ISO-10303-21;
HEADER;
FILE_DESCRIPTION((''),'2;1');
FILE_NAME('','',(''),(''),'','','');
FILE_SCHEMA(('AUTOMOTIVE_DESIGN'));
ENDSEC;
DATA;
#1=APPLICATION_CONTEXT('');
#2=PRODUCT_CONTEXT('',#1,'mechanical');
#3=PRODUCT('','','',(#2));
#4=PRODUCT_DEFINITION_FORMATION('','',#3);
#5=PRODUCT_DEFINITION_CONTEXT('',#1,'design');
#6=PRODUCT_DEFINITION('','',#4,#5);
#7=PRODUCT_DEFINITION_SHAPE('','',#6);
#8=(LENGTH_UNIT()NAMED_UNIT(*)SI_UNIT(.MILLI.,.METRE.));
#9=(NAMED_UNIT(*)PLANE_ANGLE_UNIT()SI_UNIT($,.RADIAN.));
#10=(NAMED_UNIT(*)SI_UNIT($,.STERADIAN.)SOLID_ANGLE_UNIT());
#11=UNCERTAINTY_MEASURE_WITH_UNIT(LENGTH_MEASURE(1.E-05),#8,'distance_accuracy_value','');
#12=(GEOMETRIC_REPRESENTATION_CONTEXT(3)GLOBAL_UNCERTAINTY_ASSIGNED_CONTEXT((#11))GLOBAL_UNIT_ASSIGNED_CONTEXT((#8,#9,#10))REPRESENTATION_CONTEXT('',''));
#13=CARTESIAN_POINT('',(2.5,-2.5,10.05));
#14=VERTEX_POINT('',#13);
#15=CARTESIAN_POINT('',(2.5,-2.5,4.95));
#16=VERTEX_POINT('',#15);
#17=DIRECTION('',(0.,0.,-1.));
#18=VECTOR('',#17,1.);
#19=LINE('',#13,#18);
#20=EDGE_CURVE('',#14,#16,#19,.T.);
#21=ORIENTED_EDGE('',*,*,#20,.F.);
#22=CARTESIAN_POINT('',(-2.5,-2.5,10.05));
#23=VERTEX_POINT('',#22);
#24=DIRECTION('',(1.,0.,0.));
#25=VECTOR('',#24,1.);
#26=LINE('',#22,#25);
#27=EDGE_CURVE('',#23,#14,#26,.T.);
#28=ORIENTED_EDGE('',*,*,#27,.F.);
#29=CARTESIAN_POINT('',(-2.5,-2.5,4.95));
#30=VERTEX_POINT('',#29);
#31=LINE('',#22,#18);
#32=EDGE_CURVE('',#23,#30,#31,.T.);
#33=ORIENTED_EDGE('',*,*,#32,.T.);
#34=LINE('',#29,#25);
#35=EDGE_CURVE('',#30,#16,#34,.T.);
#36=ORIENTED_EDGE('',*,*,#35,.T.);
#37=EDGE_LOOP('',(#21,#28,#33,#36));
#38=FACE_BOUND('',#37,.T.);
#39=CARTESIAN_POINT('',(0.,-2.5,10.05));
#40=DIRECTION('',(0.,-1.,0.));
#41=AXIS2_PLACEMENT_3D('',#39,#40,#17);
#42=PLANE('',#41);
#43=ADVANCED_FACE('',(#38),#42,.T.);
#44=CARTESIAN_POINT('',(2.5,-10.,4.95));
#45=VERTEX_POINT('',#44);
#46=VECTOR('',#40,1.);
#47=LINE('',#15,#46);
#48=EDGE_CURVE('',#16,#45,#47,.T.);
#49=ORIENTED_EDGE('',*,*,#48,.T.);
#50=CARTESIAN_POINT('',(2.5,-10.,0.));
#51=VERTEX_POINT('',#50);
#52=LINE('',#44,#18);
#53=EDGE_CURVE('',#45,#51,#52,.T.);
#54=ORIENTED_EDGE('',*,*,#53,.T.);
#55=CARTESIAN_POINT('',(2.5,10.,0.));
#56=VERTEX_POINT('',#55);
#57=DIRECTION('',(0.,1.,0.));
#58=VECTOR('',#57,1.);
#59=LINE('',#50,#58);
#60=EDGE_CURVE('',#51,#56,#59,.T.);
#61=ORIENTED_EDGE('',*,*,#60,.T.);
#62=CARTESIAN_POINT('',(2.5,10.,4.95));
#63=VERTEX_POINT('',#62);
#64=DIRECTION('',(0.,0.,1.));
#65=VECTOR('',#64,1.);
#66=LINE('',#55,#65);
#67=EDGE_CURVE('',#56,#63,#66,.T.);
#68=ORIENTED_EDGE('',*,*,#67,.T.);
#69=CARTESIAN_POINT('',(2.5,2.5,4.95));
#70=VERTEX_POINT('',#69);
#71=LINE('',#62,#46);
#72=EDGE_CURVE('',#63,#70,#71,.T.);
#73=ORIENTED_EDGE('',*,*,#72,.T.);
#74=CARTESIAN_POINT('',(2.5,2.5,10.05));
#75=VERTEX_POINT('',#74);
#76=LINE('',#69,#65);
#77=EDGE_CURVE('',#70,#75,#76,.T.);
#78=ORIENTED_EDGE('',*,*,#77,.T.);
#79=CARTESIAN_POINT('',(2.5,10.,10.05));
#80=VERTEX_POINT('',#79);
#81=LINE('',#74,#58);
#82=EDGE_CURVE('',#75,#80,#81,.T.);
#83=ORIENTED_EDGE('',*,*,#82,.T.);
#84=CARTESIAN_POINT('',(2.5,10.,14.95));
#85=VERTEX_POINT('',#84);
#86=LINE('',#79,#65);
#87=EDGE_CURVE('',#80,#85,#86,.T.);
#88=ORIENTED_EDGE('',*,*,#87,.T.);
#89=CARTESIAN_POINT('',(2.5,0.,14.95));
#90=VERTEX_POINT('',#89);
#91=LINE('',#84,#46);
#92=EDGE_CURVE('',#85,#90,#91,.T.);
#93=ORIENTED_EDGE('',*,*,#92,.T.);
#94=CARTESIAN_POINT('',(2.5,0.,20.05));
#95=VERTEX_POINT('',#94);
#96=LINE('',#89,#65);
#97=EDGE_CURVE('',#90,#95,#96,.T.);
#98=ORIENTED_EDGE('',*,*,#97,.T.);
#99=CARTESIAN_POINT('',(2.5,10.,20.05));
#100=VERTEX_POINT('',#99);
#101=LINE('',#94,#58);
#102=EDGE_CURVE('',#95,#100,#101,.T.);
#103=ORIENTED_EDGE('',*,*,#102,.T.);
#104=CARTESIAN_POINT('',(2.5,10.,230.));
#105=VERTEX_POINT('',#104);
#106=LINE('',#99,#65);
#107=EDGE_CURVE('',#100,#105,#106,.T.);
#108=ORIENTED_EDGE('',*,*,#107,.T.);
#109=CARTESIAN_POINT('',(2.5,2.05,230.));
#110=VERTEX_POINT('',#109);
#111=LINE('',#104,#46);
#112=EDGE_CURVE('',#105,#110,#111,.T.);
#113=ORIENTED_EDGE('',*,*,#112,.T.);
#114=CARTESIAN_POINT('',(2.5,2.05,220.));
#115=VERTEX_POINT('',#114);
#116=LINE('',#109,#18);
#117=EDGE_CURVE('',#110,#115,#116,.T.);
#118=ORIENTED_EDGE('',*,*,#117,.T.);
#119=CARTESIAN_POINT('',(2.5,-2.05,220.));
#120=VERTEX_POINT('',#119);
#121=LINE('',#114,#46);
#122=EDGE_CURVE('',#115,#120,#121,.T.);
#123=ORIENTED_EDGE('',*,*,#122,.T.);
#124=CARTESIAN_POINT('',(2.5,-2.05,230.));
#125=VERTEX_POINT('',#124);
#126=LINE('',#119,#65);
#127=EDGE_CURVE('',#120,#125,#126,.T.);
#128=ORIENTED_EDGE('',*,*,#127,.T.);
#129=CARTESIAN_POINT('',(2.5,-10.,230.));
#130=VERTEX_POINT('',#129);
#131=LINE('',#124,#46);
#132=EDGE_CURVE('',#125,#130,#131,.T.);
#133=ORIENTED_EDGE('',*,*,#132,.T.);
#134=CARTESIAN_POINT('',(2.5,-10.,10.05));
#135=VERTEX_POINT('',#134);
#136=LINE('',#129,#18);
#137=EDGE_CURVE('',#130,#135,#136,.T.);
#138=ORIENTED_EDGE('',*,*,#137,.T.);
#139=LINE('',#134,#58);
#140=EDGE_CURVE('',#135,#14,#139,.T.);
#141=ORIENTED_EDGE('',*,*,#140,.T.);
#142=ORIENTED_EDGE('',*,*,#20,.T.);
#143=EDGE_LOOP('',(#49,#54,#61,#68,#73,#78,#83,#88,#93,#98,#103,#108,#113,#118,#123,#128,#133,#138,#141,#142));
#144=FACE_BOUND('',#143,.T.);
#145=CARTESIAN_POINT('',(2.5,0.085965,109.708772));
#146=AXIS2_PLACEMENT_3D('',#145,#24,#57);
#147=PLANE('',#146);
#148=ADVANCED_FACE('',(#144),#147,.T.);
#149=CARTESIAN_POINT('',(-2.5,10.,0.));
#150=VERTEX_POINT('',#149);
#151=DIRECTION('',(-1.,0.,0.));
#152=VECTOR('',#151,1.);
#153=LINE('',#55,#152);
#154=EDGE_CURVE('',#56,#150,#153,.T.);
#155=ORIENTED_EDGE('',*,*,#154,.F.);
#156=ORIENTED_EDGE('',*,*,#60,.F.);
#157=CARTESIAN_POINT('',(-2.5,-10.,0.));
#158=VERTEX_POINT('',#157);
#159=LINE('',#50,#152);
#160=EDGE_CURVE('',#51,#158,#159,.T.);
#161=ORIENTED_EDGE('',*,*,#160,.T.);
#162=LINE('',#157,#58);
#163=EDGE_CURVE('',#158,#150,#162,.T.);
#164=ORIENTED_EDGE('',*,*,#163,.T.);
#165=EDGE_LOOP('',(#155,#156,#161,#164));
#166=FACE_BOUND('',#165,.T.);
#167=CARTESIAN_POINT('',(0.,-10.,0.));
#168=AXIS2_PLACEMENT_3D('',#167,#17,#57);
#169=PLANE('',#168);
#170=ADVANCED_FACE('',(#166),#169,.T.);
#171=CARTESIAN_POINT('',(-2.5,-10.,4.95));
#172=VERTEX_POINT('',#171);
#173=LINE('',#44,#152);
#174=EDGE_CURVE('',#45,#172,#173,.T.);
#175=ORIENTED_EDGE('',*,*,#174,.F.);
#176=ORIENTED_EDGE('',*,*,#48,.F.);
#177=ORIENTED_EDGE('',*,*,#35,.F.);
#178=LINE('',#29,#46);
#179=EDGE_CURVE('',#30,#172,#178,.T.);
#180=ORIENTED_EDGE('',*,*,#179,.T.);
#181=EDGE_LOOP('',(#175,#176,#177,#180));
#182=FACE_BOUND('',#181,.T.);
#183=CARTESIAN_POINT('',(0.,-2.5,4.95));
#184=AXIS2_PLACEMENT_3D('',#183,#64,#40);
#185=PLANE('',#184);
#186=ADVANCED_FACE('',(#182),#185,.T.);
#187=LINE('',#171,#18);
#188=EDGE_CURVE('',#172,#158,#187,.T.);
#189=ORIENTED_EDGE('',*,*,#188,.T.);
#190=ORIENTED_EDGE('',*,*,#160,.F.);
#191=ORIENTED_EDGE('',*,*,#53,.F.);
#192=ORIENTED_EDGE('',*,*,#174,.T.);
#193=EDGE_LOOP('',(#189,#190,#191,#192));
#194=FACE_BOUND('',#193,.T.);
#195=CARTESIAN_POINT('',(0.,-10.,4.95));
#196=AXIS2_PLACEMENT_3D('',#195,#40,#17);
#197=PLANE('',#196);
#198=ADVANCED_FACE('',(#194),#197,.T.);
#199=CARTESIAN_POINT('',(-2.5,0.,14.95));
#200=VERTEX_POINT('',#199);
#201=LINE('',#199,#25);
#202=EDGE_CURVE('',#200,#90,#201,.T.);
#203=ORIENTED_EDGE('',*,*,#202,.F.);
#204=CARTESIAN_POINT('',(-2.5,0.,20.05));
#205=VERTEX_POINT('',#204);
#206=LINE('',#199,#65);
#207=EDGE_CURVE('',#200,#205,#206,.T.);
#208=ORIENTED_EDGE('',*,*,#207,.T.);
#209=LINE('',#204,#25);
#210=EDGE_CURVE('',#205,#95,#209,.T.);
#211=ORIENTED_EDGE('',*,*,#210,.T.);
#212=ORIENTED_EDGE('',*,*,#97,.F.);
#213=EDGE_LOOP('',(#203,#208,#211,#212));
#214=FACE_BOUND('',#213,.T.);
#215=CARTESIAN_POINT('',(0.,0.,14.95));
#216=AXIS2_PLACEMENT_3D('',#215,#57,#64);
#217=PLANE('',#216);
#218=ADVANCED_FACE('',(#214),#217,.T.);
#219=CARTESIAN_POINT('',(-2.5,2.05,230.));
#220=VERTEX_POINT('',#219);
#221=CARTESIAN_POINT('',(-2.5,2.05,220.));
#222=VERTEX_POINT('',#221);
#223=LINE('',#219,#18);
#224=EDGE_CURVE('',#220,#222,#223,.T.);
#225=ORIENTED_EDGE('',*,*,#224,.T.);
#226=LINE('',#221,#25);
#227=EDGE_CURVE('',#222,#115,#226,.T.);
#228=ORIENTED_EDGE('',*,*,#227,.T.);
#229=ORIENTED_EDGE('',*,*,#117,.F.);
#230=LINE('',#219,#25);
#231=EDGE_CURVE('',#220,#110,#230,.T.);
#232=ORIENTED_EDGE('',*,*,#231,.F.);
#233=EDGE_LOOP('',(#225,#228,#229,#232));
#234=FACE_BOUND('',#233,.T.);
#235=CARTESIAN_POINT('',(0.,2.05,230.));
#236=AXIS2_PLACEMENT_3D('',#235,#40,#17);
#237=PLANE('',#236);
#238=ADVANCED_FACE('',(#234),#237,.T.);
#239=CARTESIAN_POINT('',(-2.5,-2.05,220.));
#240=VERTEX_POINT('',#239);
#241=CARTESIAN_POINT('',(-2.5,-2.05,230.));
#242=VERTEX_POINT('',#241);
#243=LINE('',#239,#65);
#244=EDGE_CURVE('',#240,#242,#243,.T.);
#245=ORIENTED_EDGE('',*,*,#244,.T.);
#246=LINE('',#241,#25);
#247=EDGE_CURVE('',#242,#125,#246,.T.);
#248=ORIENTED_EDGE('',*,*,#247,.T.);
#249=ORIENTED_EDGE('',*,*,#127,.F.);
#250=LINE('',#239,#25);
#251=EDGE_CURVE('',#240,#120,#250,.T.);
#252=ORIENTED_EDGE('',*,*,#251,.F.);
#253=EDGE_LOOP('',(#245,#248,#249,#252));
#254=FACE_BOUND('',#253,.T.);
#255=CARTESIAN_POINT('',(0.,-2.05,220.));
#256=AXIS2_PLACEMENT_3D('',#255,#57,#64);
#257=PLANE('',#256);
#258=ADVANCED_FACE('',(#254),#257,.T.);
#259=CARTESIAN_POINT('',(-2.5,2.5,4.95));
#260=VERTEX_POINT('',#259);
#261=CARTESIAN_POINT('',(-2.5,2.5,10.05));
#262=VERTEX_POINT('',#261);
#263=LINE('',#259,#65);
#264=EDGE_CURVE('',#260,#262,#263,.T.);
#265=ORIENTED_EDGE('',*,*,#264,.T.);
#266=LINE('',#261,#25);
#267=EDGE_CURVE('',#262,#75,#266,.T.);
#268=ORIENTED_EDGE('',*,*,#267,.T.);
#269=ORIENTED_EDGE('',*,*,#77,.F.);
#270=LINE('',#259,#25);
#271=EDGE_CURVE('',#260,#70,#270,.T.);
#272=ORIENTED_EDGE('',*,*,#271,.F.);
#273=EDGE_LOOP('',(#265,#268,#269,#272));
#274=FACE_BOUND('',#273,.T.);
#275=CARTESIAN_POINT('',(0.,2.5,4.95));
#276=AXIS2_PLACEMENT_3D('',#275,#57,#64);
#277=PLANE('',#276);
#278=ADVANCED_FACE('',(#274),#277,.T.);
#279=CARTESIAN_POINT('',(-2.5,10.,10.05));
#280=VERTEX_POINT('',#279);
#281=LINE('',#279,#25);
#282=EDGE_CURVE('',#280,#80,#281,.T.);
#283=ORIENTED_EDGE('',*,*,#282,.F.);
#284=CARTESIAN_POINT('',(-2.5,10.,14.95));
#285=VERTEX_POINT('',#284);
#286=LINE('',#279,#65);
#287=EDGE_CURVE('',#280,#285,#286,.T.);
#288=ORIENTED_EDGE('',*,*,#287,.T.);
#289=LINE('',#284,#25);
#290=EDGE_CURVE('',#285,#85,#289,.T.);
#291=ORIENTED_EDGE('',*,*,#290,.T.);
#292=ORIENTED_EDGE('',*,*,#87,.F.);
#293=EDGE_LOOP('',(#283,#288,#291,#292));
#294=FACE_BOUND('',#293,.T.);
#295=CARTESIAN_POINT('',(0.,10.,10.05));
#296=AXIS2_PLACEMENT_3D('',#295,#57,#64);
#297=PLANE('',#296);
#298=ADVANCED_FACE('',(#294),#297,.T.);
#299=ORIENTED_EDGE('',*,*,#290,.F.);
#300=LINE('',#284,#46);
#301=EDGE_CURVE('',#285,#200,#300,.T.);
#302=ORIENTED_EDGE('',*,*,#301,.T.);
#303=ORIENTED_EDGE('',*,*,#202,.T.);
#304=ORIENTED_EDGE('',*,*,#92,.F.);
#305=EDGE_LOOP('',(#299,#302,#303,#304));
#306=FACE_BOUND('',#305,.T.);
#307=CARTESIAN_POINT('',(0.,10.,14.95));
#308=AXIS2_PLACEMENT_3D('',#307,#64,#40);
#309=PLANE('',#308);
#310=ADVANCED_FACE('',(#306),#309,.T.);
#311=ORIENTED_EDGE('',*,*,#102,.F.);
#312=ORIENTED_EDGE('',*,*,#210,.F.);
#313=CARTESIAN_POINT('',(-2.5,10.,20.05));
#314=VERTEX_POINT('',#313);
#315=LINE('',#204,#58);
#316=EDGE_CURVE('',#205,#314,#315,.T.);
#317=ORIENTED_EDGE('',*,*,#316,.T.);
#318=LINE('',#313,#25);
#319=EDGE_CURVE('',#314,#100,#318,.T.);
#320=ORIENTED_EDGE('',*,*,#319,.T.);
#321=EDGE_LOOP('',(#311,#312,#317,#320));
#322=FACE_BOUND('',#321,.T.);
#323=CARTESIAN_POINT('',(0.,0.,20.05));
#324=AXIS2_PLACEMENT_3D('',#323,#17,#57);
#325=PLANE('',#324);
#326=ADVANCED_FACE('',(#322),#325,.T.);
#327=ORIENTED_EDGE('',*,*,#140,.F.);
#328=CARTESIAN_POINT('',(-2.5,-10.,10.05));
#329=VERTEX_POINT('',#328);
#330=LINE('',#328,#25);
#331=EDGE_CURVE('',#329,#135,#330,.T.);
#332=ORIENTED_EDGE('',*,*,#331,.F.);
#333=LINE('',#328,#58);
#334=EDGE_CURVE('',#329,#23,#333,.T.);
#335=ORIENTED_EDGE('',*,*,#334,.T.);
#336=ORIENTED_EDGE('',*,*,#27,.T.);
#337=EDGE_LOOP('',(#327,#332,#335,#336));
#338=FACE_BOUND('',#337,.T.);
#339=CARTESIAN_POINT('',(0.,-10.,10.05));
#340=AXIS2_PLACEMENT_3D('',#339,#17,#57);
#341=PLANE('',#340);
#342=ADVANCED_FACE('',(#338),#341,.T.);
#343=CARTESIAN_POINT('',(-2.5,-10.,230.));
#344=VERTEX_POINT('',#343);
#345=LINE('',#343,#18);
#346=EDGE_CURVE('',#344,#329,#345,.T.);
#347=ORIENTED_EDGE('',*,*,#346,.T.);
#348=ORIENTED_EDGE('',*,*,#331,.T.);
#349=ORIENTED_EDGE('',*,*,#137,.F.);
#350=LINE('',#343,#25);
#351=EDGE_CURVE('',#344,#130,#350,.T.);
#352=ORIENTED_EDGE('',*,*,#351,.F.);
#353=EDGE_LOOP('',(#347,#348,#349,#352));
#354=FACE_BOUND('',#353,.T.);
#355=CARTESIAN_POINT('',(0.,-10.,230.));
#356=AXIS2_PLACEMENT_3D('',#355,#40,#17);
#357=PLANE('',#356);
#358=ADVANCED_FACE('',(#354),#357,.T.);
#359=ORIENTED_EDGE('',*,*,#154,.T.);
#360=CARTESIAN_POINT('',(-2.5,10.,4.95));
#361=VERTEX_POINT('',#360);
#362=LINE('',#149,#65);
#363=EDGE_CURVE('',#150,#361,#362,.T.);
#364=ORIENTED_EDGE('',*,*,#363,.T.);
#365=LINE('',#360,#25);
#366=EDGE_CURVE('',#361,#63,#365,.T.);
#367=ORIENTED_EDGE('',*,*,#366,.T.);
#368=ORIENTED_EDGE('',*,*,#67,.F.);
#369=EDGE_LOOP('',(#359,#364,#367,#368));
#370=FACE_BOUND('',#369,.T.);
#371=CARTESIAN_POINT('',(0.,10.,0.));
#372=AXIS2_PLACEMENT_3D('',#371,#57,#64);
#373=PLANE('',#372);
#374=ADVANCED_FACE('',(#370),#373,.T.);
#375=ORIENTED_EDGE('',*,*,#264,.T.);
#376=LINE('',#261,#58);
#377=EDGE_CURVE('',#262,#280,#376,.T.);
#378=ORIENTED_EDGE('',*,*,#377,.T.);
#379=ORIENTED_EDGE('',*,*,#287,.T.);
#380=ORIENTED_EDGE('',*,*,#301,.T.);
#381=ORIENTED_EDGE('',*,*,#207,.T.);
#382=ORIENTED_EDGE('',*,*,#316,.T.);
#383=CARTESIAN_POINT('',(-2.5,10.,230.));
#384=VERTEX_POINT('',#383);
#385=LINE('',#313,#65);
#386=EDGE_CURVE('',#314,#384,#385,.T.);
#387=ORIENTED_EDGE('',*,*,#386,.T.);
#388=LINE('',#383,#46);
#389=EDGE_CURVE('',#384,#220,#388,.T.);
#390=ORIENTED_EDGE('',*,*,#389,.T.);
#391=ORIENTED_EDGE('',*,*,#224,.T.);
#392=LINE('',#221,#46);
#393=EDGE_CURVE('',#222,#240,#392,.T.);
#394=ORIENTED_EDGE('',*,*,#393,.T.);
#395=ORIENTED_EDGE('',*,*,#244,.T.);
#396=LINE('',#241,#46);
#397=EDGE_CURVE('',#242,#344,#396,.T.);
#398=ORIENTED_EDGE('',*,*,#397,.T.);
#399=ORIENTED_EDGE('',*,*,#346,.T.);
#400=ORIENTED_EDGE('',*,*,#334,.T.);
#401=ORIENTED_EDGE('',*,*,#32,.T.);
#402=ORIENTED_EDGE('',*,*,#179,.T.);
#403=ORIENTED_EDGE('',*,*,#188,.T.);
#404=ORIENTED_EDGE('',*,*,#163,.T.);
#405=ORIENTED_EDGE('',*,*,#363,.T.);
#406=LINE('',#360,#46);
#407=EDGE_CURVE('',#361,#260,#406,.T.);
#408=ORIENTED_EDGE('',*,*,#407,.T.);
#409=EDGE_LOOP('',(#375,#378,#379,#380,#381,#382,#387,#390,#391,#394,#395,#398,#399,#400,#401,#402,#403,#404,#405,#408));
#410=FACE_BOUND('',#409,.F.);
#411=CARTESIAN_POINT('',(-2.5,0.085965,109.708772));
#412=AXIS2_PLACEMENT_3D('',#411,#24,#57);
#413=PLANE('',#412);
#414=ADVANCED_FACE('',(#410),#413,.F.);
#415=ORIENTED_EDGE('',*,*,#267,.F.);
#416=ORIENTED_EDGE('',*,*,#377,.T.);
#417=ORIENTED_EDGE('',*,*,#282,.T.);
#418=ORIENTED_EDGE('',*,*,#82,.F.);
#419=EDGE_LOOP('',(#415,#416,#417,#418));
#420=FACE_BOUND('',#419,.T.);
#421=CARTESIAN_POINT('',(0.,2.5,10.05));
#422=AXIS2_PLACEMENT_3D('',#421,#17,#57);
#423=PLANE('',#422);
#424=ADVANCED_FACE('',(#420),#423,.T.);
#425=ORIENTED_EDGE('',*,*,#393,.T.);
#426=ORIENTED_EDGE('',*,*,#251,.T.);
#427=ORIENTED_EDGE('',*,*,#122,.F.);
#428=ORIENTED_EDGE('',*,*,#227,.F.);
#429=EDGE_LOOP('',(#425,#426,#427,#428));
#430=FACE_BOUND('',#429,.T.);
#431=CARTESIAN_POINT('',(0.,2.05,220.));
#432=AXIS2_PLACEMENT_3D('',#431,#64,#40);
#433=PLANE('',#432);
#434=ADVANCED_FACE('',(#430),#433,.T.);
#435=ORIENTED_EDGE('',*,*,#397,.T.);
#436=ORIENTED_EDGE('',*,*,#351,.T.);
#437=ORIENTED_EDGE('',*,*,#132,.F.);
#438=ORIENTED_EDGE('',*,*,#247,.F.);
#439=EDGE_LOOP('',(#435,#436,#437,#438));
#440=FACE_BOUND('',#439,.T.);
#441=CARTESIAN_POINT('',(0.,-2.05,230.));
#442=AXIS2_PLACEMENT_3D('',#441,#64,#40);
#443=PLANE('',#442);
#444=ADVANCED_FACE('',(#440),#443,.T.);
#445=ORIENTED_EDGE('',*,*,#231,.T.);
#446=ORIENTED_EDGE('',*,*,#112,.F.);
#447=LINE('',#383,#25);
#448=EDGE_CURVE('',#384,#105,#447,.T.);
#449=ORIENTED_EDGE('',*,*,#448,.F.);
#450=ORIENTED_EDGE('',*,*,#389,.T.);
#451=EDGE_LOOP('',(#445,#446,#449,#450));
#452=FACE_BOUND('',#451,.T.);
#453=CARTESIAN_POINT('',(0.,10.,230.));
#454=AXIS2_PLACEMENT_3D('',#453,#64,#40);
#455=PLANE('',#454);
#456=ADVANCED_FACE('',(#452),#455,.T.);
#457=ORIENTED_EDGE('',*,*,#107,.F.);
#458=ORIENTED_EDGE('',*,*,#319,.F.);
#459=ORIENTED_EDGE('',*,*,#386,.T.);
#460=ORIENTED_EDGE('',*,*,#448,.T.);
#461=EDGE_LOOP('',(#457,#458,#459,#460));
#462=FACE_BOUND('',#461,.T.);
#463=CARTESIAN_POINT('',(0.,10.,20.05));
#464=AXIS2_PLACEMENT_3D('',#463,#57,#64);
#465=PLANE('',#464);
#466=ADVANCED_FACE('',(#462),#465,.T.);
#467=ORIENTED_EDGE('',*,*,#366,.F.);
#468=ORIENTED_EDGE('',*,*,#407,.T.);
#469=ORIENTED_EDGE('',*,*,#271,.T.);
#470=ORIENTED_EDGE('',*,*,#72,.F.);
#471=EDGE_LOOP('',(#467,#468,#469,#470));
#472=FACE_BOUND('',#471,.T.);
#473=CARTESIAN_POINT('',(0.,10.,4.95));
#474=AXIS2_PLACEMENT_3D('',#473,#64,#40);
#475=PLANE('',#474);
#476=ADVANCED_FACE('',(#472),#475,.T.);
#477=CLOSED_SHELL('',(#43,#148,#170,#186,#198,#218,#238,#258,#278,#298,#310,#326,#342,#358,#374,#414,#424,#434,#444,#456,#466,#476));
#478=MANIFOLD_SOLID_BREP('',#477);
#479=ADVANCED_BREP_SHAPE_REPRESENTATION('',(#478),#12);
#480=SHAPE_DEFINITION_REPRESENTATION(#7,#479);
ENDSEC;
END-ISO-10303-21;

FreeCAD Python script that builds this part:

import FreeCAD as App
import Part
import Sketcher
from FreeCAD import Vector
Q = App.Units.Quantity


def add_polygon(sketch, points):
    """Adds a closed chain of lines whose ends are joined by coincident constraints."""
    first, n = sketch.GeometryCount, len(points)
    for a, b in zip(points, points[1:] + points[:1]):
        sketch.addGeometry(Part.LineSegment(App.Vector(*a, 0), App.Vector(*b, 0)), False)
    for i in range(n):
        sketch.addConstraint(Sketcher.Constraint("Coincident", first + i, 2, first + (i + 1) % n, 1))

doc = App.newDocument("Part")
params = doc.addObject("Spreadsheet::Sheet", "Params")
for row, (alias, value) in enumerate([
    ("sketch1_width", "10 mm"),
    ("sketch1_width2", "7.5 mm"),
    ("sketch1_width3", "4.1 mm"),
    ("sketch1_height", "5.1 mm"),
    ("sketch1_height2", "4.9 mm"),
    ("pad1_length", "5 mm"),
], start=1):
    params.set(f"A{row}", alias)
    params.set(f"B{row}", "=" + value)
    params.setAlias(f"B{row}", alias)

body = doc.addObject("PartDesign::Body", "Body")

# Sketch on YZ plane
sketch1 = body.newObject("Sketcher::SketchObject", "Sketch")
sketch1.AttachmentSupport = (doc.getObject("YZ_Plane"), [""])
sketch1.MapMode = "FlatFace"
add_polygon(sketch1, [(10, 0), (10, 5), (2.5, 5), (2.5, 10.1), (10, 10.1), (10, 14.9), (0, 14.9), (0, 20.1), (10, 20.1), (10, 230), (2, 230), (2, 220), (-2, 220), (-2, 230), (-10, 230), (-10, 10.1), (-2.5, 10.1), (-2.5, 5), (-10, 5), (-10, 0)])  # lines 0-19
sketch1.addConstraint([
    Sketcher.Constraint("Vertical", 0),
    Sketcher.Constraint("Horizontal", 1),
    Sketcher.Constraint("Vertical", 2),
    Sketcher.Constraint("Horizontal", 3),
    Sketcher.Constraint("Vertical", 4),
    Sketcher.Constraint("Horizontal", 5),
    Sketcher.Constraint("Vertical", 6),
    Sketcher.Constraint("Horizontal", 7),
    Sketcher.Constraint("Vertical", 8),
    Sketcher.Constraint("Horizontal", 9),
    Sketcher.Constraint("Vertical", 10),
    Sketcher.Constraint("Horizontal", 11),
    Sketcher.Constraint("Vertical", 12),
    Sketcher.Constraint("Horizontal", 13),
    Sketcher.Constraint("Vertical", 14),
    Sketcher.Constraint("Horizontal", 15),
    Sketcher.Constraint("Vertical", 16),
    Sketcher.Constraint("Horizontal", 17),
    Sketcher.Constraint("Vertical", 18),
    Sketcher.Constraint("Horizontal", 19),
    Sketcher.Constraint("Symmetric", 18, 2, 19, 2, -1, 1),
    Sketcher.Constraint("Symmetric", 9, 2, 12, 2, -2),
    Sketcher.Constraint("Symmetric", 3, 2, 14, 2, -2),
    Sketcher.Constraint("Symmetric", 1, 2, 16, 2, -2),
    Sketcher.Constraint("PointOnObject", 5, 2, -2),
    Sketcher.Constraint("Vertical", 0, 2, 3, 2),
    Sketcher.Constraint("Vertical", 4, 2, 7, 2),
    Sketcher.Constraint("Equal", 2, 6),
    Sketcher.Constraint("Equal", 7, 10),
    Sketcher.Constraint("DistanceX", 5, 2, 5, 1, Q("10 mm")),
    Sketcher.Constraint("DistanceX", 1, 2, 1, 1, Q("7.5 mm")),
    Sketcher.Constraint("DistanceX", 11, 2, 11, 1, Q("4.1 mm")),
    Sketcher.Constraint("DistanceY", 2, 1, 2, 2, Q("5.1 mm")),
    Sketcher.Constraint("DistanceY", 4, 1, 4, 2, Q("4.9 mm")),
    Sketcher.Constraint("DistanceY", -1, 1, 8, 2, Q("230 mm")),
    Sketcher.Constraint("DistanceY", 0, 1, 0, 2, Q("4.95 mm")),
])
sketch1.setExpression("Constraints[49]", "Params.sketch1_width")
sketch1.setExpression("Constraints[50]", "Params.sketch1_width2")
sketch1.setExpression("Constraints[51]", "Params.sketch1_width3")
sketch1.setExpression("Constraints[52]", "Params.sketch1_height")
sketch1.setExpression("Constraints[53]", "Params.sketch1_height2")
pad1 = body.newObject("PartDesign::Pad", "Pad")
pad1.Profile = sketch1
pad1.setExpression("Length", "Params.pad1_length")
pad1.Midplane = True

doc.recompute()
